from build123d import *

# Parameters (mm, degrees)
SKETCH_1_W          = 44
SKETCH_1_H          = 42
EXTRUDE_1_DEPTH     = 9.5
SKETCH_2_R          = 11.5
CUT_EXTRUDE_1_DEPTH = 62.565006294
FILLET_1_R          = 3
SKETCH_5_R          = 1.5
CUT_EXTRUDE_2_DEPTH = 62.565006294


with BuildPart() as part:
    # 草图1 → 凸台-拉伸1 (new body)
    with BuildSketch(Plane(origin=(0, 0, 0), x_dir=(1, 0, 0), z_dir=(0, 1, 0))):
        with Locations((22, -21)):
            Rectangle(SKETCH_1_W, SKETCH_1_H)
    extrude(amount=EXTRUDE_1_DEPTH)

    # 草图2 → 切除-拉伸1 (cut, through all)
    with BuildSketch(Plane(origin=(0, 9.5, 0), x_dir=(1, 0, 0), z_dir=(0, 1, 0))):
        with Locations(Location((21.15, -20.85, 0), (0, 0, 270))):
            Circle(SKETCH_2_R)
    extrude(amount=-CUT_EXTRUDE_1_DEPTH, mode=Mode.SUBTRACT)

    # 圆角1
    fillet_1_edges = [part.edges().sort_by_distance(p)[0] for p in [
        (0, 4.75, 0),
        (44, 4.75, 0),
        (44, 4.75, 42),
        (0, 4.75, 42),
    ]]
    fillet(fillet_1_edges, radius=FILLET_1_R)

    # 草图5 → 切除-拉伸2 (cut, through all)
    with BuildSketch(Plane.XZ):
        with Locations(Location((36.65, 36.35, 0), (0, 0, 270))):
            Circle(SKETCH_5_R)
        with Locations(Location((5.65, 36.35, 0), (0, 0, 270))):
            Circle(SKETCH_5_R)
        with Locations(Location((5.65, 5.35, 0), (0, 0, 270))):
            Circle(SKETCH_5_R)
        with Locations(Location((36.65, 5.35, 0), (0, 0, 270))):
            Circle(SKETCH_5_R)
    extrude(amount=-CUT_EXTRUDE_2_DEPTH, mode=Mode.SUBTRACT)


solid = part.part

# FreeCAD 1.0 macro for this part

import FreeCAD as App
import Part
import Sketcher


def edges_at(feature, points):
    """Names of the edges that pass closest to the given points."""
    edges = feature.Shape.Edges
    near = lambda p: min(range(len(edges)), key=lambda i: edges[i].distToShape(Part.Vertex(*p))[0])
    return sorted({f"Edge{near(p) + 1}" for p in points})


def add_polygon(sketch, points):
    """Adds a closed chain of lines whose ends are joined by coincident constraints."""
    first, n = sketch.GeometryCount, len(points)
    for a, b in zip(points, points[1:] + points[:1]):
        sketch.addGeometry(Part.LineSegment(App.Vector(*a, 0), App.Vector(*b, 0)), False)
    for i in range(n):
        sketch.addConstraint(Sketcher.Constraint("Coincident", first + i, 2, first + (i + 1) % n, 1))

doc = App.newDocument("Part")
body = doc.addObject("PartDesign::Body", "Body")

# Sketch on XZ plane
sketch1 = body.newObject("Sketcher::SketchObject", "Sketch")
sketch1.AttachmentSupport = (doc.getObject("XZ_Plane"), [""])
sketch1.MapMode = "FlatFace"
add_polygon(sketch1, [(0, 0), (0, 42), (44, 42), (44, 0)])  # lines 0-3
sketch1.addConstraint([
    Sketcher.Constraint("Vertical", 0),
    Sketcher.Constraint("Horizontal", 1),
    Sketcher.Constraint("Vertical", 2),
    Sketcher.Constraint("Horizontal", 3),
    Sketcher.Constraint("Coincident", 3, 2, -1, 1),
    Sketcher.Constraint("DistanceX", 1, 1, 1, 2, 44.0),
    Sketcher.Constraint("DistanceY", 0, 1, 0, 2, 42.0),
])
pad1 = body.newObject("PartDesign::Pad", "Pad")
pad1.Profile = sketch1
pad1.Length = 9.5
pad1.Reversed = True

# Sketch on XZ plane
sketch2 = body.newObject("Sketcher::SketchObject", "Sketch001")
sketch2.AttachmentSupport = (doc.getObject("XZ_Plane"), [""])
sketch2.MapMode = "FlatFace"
sketch2.AttachmentOffset = App.Placement(App.Vector(0, 0, -9.5), App.Rotation())
sketch2.addGeometry(Part.Circle(App.Vector(21.15, 20.85, 0), App.Vector(0, 0, 1), 11.5), False)
sketch2.addConstraint([
    Sketcher.Constraint("Diameter", 0, 23.0),
    Sketcher.Constraint("DistanceX", -1, 1, 0, 3, 21.15),
    Sketcher.Constraint("DistanceY", -1, 1, 0, 3, 20.85),
])
pocket1 = body.newObject("PartDesign::Pocket", "Pocket")
pocket1.Profile = sketch2
pocket1.Type = "ThroughAll"
pocket1.Reversed = True
doc.recompute()

fillet = body.newObject("PartDesign::Fillet", "Fillet")
fillet.Base = (pocket1, edges_at(pocket1, [
    (0, 4.75, 0),
    (44, 4.75, 0),
    (44, 4.75, 42),
    (0, 4.75, 42),
]))
fillet.Radius = 3

# Sketch on XZ plane
sketch3 = body.newObject("Sketcher::SketchObject", "Sketch002")
sketch3.AttachmentSupport = (doc.getObject("XZ_Plane"), [""])
sketch3.MapMode = "FlatFace"
sketch3.addGeometry([
    Part.Circle(App.Vector(36.65, 36.35, 0), App.Vector(0, 0, 1), 1.5),
    Part.Circle(App.Vector(5.65, 36.35, 0), App.Vector(0, 0, 1), 1.5),
    Part.Circle(App.Vector(5.65, 5.35, 0), App.Vector(0, 0, 1), 1.5),
    Part.Circle(App.Vector(36.65, 5.35, 0), App.Vector(0, 0, 1), 1.5),
], False)
sketch3.addConstraint([
    Sketcher.Constraint("Equal", 0, 1),
    Sketcher.Constraint("Equal", 1, 2),
    Sketcher.Constraint("Equal", 2, 3),
    Sketcher.Constraint("Horizontal", 0, 3, 1, 3),
    Sketcher.Constraint("Horizontal", 2, 3, 3, 3),
    Sketcher.Constraint("Vertical", 1, 3, 2, 3),
    Sketcher.Constraint("Vertical", 0, 3, 3, 3),
    Sketcher.Constraint("Diameter", 0, 3.0),
    Sketcher.Constraint("DistanceX", 1, 3, 0, 3, 31.0),
    Sketcher.Constraint("DistanceY", 2, 3, 1, 3, 31.0),
    Sketcher.Constraint("DistanceX", -1, 1, 0, 3, 36.65),
    Sketcher.Constraint("DistanceY", -1, 1, 0, 3, 36.35),
])
pocket2 = body.newObject("PartDesign::Pocket", "Pocket001")
pocket2.Profile = sketch3
pocket2.Type = "ThroughAll"

doc.recompute()
